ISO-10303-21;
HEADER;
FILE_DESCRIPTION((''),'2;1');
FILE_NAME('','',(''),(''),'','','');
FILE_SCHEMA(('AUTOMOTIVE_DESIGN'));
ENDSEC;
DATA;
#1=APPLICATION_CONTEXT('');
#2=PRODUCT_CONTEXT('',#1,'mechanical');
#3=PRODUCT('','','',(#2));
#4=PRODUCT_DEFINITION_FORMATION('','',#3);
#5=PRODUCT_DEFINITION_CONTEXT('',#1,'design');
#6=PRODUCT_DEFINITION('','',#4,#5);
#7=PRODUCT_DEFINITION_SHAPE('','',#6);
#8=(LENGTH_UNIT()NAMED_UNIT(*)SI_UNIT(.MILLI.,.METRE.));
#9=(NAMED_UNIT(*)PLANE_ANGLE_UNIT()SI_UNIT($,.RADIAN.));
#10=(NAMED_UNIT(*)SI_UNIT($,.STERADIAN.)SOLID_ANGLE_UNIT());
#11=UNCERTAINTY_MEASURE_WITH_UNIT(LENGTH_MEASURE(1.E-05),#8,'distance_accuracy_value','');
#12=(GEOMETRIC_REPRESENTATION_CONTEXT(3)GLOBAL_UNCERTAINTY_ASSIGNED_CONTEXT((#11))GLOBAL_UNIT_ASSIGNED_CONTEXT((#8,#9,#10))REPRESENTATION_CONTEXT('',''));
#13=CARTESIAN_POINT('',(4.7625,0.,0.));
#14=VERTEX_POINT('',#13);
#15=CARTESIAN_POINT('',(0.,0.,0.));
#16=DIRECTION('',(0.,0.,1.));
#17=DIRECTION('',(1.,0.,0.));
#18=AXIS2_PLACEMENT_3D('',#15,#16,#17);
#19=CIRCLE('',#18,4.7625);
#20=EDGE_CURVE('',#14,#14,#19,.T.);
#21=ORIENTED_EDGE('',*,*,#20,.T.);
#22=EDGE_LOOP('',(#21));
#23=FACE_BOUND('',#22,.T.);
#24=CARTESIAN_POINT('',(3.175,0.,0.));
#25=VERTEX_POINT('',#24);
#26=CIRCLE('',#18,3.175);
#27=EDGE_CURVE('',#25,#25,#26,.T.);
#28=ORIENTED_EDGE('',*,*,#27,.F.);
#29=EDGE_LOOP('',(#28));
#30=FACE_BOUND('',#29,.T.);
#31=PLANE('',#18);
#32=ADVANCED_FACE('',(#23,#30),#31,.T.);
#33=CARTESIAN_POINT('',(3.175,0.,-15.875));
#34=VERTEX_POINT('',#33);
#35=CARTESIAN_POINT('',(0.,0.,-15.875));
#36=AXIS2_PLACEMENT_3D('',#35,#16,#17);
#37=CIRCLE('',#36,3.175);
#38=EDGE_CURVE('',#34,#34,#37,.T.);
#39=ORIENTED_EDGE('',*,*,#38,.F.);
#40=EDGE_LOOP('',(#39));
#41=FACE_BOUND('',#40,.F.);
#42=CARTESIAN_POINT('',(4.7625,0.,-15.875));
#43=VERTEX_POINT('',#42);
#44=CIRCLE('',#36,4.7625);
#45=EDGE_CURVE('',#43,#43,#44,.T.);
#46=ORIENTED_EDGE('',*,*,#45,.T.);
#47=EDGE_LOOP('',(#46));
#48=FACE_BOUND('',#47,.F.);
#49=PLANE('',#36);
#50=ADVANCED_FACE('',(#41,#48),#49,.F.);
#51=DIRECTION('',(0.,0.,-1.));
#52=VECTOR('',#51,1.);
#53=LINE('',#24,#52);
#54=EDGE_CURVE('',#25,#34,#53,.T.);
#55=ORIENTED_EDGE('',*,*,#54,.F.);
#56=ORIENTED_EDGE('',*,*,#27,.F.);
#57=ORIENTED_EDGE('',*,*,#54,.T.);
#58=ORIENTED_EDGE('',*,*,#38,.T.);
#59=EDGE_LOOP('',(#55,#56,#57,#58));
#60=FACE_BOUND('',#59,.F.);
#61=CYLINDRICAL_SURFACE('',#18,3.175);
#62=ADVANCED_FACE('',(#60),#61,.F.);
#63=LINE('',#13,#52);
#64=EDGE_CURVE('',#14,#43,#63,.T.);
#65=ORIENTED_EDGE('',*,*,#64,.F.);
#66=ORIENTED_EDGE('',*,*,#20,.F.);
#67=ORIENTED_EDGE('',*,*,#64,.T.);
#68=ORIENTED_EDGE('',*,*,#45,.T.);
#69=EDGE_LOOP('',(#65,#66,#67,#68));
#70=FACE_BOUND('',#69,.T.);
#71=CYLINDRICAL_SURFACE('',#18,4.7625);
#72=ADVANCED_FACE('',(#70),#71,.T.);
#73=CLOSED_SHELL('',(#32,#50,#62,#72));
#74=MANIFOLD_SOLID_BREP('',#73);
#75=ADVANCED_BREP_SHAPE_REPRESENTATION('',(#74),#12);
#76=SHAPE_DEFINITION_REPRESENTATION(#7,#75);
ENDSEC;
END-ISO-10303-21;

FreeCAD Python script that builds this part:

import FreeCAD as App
import Part
import Sketcher

V = App.Vector
Q = App.Units.Quantity

doc = App.newDocument("Part")
body = doc.addObject("PartDesign::Body", "Body")

# Sketch on XY plane
sketch1 = body.newObject("Sketcher::SketchObject", "Sketch")
sketch1.AttachmentSupport = (doc.getObject("XY_Plane"), [""])
sketch1.MapMode = "FlatFace"
sketch1.addGeometry([
    Part.Circle(V(0, 0, 0), V(0, 0, 1), 4.8),
    Part.Circle(V(0, 0, 0), V(0, 0, 1), 3.2),
], False)
sketch1.addConstraint([
    Sketcher.Constraint("Coincident", 0, 3, -1, 1),
    Sketcher.Constraint("Coincident", 1, 3, -1, 1),
    Sketcher.Constraint("Diameter", 1, Q("0.25 in")),
    Sketcher.Constraint("Diameter", 0, Q("0.375 in")),
])
pad1 = body.newObject("PartDesign::Pad", "Pad")
pad1.Profile = sketch1
pad1.Length = Q("0.625 in")
pad1.Reversed = True

doc.recompute()
